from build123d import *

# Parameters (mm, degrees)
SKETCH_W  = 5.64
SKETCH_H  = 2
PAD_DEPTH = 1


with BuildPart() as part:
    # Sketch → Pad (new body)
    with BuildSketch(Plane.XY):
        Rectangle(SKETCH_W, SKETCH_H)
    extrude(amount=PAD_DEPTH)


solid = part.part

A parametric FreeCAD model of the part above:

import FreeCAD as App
import Part
import Sketcher

V = App.Vector
Q = App.Units.Quantity


def add_polygon(sketch, points):
    """Adds a closed chain of lines whose ends are joined by coincident constraints."""
    first, n = sketch.GeometryCount, len(points)
    for a, b in zip(points, points[1:] + points[:1]):
        sketch.addGeometry(Part.LineSegment(App.Vector(*a, 0), App.Vector(*b, 0)), False)
    for i in range(n):
        sketch.addConstraint(Sketcher.Constraint("Coincident", first + i, 2, first + (i + 1) % n, 1))

doc = App.newDocument("Part")
body = doc.addObject("PartDesign::Body", "Body")

sketch1 = body.newObject("Sketcher::SketchObject", "Sketch")
sketch1.AttachmentSupport = (doc.getObject("XY_Plane"), [""])
sketch1.MapMode = "FlatFace"
add_polygon(sketch1, [(-2.8, 1), (-2.8, -1), (2.8, -1), (2.8, 1)])
sketch1.addConstraint([
    Sketcher.Constraint("Vertical", 0),
    Sketcher.Constraint("Horizontal", 1),
    Sketcher.Constraint("Vertical", 2),
    Sketcher.Constraint("Horizontal", 3),
    Sketcher.Constraint("Symmetric", 0, 2, 2, 2, -1, 1),
    Sketcher.Constraint("DistanceY", 0, 2, 0, 1, Q("2 mm")),
    Sketcher.Constraint("DistanceX", 1, 1, 1, 2, Q("5.64 mm")),
])
pad1 = body.newObject("PartDesign::Pad", "Pad")
pad1.Profile = sketch1
pad1.Length = 1

doc.recompute()
